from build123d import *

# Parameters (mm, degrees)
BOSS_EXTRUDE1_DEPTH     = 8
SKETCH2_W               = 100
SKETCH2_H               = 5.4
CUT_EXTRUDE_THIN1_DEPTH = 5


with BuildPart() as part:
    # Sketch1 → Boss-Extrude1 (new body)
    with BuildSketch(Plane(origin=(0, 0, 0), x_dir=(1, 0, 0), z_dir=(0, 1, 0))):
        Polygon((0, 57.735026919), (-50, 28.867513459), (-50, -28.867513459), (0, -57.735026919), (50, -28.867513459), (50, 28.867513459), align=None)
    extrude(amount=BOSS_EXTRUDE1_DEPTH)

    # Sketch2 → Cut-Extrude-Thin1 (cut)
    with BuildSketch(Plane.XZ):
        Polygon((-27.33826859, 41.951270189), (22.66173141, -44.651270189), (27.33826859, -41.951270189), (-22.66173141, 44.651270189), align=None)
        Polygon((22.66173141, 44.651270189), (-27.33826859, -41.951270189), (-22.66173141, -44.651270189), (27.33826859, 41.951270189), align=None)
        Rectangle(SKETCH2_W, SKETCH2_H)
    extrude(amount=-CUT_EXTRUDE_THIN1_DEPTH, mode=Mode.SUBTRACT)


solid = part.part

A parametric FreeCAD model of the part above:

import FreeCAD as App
import Part
import Sketcher

V = App.Vector
Q = App.Units.Quantity

doc = App.newDocument("Part")
body = doc.addObject("PartDesign::Body", "Body")

sketch1 = body.newObject("Sketcher::SketchObject", "Sketch")
sketch1.AttachmentSupport = (doc.getObject("XZ_Plane"), [""])
sketch1.MapMode = "FlatFace"
sketch1.addGeometry([
    Part.LineSegment(V(0, -58, 0), V(-50, -29, 0)),
    Part.LineSegment(V(-50, -29, 0), V(-50, 29, 0)),
    Part.LineSegment(V(-50, 29, 0), V(0, 58, 0)),
    Part.LineSegment(V(0, 58, 0), V(50, 29, 0)),
    Part.LineSegment(V(50, 29, 0), V(50, -29, 0)),
    Part.LineSegment(V(50, -29, 0), V(0, -58, 0)),
], False)
sketch1.addConstraint([
    Sketcher.Constraint("Coincident", 0, 2, 1, 1),
    Sketcher.Constraint("Coincident", 1, 2, 2, 1),
    Sketcher.Constraint("Coincident", 2, 2, 3, 1),
    Sketcher.Constraint("Coincident", 3, 2, 4, 1),
    Sketcher.Constraint("Coincident", 4, 2, 5, 1),
    Sketcher.Constraint("Coincident", 5, 2, 0, 1),
    Sketcher.Constraint("Vertical", 1),
    Sketcher.Constraint("Vertical", 4),
    Sketcher.Constraint("Symmetric", 0, 2, 3, 2, -1, 1),
    Sketcher.Constraint("Symmetric", 2, 2, 5, 2, -1, 1),
    Sketcher.Constraint("PointOnObject", 2, 2, -2),
    Sketcher.Constraint("Parallel", 2, 5),
    Sketcher.Constraint("Horizontal", 1, 2, 3, 2),
    Sketcher.Constraint("Angle", 0, Q("150 deg")),
    Sketcher.Constraint("DistanceX", 0, 2, -1, 1, 50.0),
    Sketcher.Constraint("DistanceY", 1, 1, 1, 2, 57.735027),
])
pad1 = body.newObject("PartDesign::Pad", "Pad")
pad1.Profile = sketch1
pad1.Length = 8
pad1.Reversed = True

sketch2 = body.newObject("Sketcher::SketchObject", "Sketch001")
sketch2.AttachmentSupport = (doc.getObject("XZ_Plane"), [""])
sketch2.MapMode = "FlatFace"
sketch2.addGeometry([
    Part.LineSegment(V(0, 5, 0), V(-23, 45, 0)),
    Part.LineSegment(V(-23, 45, 0), V(-27, 42, 0)),
    Part.LineSegment(V(-27, 42, 0), V(-5, 3, 0)),
    Part.LineSegment(V(-5, 3, 0), V(-50, 3, 0)),
    Part.LineSegment(V(-50, 3, 0), V(-50, -3, 0)),
    Part.LineSegment(V(-50, -3, 0), V(-5, -3, 0)),
    Part.LineSegment(V(-5, -3, 0), V(-27, -42, 0)),
    Part.LineSegment(V(-27, -42, 0), V(-23, -45, 0)),
    Part.LineSegment(V(-23, -45, 0), V(0, -5, 0)),
    Part.LineSegment(V(0, -5, 0), V(23, -45, 0)),
    Part.LineSegment(V(23, -45, 0), V(27, -42, 0)),
    Part.LineSegment(V(27, -42, 0), V(5, -3, 0)),
    Part.LineSegment(V(5, -3, 0), V(50, -3, 0)),
    Part.LineSegment(V(50, -3, 0), V(50, 3, 0)),
    Part.LineSegment(V(50, 3, 0), V(5, 3, 0)),
    Part.LineSegment(V(5, 3, 0), V(27, 42, 0)),
    Part.LineSegment(V(27, 42, 0), V(23, 45, 0)),
    Part.LineSegment(V(23, 45, 0), V(0, 5, 0)),
], False)
sketch2.addConstraint([
    Sketcher.Constraint("Coincident", 0, 2, 1, 1),
    Sketcher.Constraint("Coincident", 1, 2, 2, 1),
    Sketcher.Constraint("Coincident", 2, 2, 3, 1),
    Sketcher.Constraint("Coincident", 3, 2, 4, 1),
    Sketcher.Constraint("Coincident", 4, 2, 5, 1),
    Sketcher.Constraint("Coincident", 5, 2, 6, 1),
    Sketcher.Constraint("Coincident", 6, 2, 7, 1),
    Sketcher.Constraint("Coincident", 7, 2, 8, 1),
    Sketcher.Constraint("Coincident", 8, 2, 9, 1),
    Sketcher.Constraint("Coincident", 9, 2, 10, 1),
    Sketcher.Constraint("Coincident", 10, 2, 11, 1),
    Sketcher.Constraint("Coincident", 11, 2, 12, 1),
    Sketcher.Constraint("Coincident", 12, 2, 13, 1),
    Sketcher.Constraint("Coincident", 13, 2, 14, 1),
    Sketcher.Constraint("Coincident", 14, 2, 15, 1),
    Sketcher.Constraint("Coincident", 15, 2, 16, 1),
    Sketcher.Constraint("Coincident", 16, 2, 17, 1),
    Sketcher.Constraint("Coincident", 17, 2, 0, 1),
    Sketcher.Constraint("Horizontal", 3),
    Sketcher.Constraint("Vertical", 4),
    Sketcher.Constraint("Horizontal", 5),
    Sketcher.Constraint("Horizontal", 12),
    Sketcher.Constraint("Vertical", 13),
    Sketcher.Constraint("Horizontal", 14),
    Sketcher.Constraint("Symmetric", 0, 2, 9, 2, -1, 1),
    Sketcher.Constraint("Symmetric", 1, 2, 10, 2, -1, 1),
    Sketcher.Constraint("Symmetric", 2, 2, 11, 2, -1, 1),
    Sketcher.Constraint("Symmetric", 4, 2, 13, 2, -1, 1),
    Sketcher.Constraint("Symmetric", 6, 2, 15, 2, -1, 1),
    Sketcher.Constraint("Symmetric", 7, 2, 16, 2, -1, 1),
    Sketcher.Constraint("Symmetric", 8, 2, 17, 2, -1, 1),
    Sketcher.Constraint("Symmetric", 7, 2, 9, 2, -2),
    Sketcher.Constraint("Symmetric", 6, 2, 10, 2, -2),
    Sketcher.Constraint("Symmetric", 5, 2, 11, 2, -2),
    Sketcher.Constraint("PointOnObject", 8, 2, -2),
    Sketcher.Constraint("Perpendicular", 0, 1),
    Sketcher.Constraint("Perpendicular", 1, 2),
    Sketcher.Constraint("Parallel", 8, 15),
    Sketcher.Constraint("Equal", 0, 2),
    Sketcher.Constraint("Angle", 0, Q("120 deg")),
    Sketcher.Constraint("DistanceY", 4, 2, 4, 1, 5.4),
    Sketcher.Constraint("DistanceX", 3, 2, -1, 1, 50.0),
    Sketcher.Constraint("DistanceX", 6, 2, 9, 2, 50.0),
    Sketcher.Constraint("Distance", 1, 5.4),
])
pocket1 = body.newObject("PartDesign::Pocket", "Pocket")
pocket1.Profile = sketch2
pocket1.Length = 5

doc.recompute()
